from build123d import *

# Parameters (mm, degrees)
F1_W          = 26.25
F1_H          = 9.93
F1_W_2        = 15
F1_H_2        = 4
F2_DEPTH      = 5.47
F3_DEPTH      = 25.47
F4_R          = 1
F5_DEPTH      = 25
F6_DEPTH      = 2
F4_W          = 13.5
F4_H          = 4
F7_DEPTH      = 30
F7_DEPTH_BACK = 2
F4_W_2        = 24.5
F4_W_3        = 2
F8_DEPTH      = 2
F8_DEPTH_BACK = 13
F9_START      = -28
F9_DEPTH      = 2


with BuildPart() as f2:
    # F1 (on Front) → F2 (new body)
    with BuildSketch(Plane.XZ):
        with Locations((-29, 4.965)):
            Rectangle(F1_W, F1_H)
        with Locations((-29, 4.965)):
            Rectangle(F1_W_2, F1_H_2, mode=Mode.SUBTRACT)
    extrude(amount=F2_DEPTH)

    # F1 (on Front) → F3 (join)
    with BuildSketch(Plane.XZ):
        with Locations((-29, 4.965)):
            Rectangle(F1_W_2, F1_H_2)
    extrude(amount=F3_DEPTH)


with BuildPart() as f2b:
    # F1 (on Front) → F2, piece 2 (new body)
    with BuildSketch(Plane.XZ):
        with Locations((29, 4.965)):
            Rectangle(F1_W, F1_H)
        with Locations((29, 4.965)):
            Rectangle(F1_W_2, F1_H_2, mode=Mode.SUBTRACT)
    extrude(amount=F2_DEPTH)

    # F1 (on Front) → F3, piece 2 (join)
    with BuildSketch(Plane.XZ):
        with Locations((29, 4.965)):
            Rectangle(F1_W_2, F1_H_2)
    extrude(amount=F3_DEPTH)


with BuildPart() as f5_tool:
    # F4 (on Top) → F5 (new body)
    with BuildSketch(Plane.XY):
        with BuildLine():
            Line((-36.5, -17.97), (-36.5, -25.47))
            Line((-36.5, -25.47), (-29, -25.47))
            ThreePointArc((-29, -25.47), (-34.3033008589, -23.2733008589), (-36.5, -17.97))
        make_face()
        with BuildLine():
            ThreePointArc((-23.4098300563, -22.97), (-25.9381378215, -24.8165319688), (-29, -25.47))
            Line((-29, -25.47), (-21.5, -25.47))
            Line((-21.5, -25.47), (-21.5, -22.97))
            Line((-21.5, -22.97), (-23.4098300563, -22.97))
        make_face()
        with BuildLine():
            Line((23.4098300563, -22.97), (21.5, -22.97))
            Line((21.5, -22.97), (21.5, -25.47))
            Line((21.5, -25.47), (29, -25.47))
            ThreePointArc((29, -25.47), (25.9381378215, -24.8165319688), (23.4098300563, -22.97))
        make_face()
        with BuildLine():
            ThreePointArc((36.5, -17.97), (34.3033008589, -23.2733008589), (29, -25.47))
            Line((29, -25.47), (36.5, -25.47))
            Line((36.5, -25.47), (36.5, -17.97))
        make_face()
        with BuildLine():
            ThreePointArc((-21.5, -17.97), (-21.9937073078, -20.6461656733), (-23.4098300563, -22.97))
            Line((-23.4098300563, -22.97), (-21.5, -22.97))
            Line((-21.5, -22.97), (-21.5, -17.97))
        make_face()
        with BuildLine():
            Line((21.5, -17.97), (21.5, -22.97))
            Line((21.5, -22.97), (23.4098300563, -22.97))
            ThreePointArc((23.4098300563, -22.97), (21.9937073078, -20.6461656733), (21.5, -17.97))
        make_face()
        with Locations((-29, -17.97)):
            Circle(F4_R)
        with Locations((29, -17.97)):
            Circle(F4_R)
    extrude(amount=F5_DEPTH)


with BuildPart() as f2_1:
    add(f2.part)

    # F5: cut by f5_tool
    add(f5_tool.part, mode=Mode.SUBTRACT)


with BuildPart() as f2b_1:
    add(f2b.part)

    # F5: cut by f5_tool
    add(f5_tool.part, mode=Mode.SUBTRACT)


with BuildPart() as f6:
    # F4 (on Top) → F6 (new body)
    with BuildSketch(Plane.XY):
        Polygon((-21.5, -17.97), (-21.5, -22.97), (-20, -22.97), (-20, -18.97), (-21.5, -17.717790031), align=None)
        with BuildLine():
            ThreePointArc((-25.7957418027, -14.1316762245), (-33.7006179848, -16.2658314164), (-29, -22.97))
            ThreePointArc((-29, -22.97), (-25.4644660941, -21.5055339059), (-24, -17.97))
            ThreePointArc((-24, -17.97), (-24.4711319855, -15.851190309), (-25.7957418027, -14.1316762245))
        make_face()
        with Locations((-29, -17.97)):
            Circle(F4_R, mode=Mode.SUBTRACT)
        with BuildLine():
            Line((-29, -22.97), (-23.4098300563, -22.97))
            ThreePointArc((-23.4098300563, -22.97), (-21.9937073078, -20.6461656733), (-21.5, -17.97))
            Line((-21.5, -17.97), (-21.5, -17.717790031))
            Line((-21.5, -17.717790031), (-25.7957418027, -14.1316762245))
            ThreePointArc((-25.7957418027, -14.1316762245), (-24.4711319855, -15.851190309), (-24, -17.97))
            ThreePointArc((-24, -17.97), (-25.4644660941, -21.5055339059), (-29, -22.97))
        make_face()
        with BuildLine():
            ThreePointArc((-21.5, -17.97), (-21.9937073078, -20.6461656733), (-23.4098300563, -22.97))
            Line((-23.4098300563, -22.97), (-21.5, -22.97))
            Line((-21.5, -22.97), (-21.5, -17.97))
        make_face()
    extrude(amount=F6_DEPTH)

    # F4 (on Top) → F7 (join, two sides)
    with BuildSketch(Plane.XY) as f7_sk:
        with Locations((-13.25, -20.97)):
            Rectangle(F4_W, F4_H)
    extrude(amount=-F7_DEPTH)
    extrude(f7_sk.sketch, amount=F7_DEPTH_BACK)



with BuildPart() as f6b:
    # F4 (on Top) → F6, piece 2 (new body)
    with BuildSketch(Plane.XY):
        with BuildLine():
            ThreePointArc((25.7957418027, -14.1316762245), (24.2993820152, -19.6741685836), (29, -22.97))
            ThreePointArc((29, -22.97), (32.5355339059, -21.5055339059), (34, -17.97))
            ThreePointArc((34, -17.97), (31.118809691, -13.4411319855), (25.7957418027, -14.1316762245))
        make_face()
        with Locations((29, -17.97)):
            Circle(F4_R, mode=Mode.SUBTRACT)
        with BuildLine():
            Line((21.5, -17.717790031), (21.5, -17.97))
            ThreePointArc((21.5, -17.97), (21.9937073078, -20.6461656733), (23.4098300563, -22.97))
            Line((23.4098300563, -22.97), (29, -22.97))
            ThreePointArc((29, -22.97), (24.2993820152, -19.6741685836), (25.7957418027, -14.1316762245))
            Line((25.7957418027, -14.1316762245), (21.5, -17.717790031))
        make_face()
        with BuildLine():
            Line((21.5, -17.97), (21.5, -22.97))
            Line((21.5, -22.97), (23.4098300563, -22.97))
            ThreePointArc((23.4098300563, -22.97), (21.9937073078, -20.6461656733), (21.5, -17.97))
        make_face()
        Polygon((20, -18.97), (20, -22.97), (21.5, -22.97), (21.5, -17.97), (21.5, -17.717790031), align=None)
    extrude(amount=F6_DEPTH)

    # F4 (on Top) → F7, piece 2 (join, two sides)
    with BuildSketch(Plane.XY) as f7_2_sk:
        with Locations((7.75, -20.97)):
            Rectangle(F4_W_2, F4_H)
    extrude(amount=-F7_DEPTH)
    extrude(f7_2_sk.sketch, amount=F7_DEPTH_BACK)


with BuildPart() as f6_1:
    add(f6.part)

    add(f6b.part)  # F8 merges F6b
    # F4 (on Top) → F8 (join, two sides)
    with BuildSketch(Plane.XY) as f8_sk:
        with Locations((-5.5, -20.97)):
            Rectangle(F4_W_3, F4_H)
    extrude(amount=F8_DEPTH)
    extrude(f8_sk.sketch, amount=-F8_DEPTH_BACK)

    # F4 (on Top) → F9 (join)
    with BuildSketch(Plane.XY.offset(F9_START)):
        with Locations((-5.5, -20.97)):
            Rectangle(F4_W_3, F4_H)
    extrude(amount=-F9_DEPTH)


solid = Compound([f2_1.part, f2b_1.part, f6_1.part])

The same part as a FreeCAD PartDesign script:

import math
import FreeCAD as App
import Part
import Sketcher
Q = App.Units.Quantity


def add_polygon(sketch, points):
    """Adds a closed chain of lines whose ends are joined by coincident constraints."""
    first, n = sketch.GeometryCount, len(points)
    for a, b in zip(points, points[1:] + points[:1]):
        sketch.addGeometry(Part.LineSegment(App.Vector(*a, 0), App.Vector(*b, 0)), False)
    for i in range(n):
        sketch.addConstraint(Sketcher.Constraint("Coincident", first + i, 2, first + (i + 1) % n, 1))

doc = App.newDocument("Part")
body = doc.addObject("PartDesign::Body", "Body")

sketch1 = body.newObject("Sketcher::SketchObject", "Sketch")
sketch1.AttachmentSupport = (doc.getObject("XZ_Plane"), [""])
sketch1.MapMode = "FlatFace"
add_polygon(sketch1, [(-42.1, 9.9), (-42.1, 0), (-15.9, 0), (-15.9, 9.9)])
add_polygon(sketch1, [(-21.5, 3), (-36.5, 3), (-36.5, 7), (-21.5, 7)])
sketch1.addConstraint(Sketcher.Constraint("Vertical", 0))
sketch1.addConstraint(Sketcher.Constraint("Horizontal", 1))
sketch1.addConstraint(Sketcher.Constraint("Vertical", 2))
sketch1.addConstraint(Sketcher.Constraint("Horizontal", 3))
sketch1.addConstraint(Sketcher.Constraint("Horizontal", 4))
sketch1.addConstraint(Sketcher.Constraint("Vertical", 5))
sketch1.addConstraint(Sketcher.Constraint("Horizontal", 6))
sketch1.addConstraint(Sketcher.Constraint("Vertical", 7))
sketch1.addConstraint(Sketcher.Constraint("PointOnObject", 0, 2, -1))
sketch1.addConstraint(Sketcher.Constraint("DistanceX", 4, 2, 4, 1, Q("15 mm")))
sketch1.addConstraint(Sketcher.Constraint("DistanceY", 5, 1, 5, 2, Q("4 mm")))
sketch1.addConstraint(Sketcher.Constraint("DistanceX", 1, 1, 1, 2, Q("26.25 mm")))
sketch1.addConstraint(Sketcher.Constraint("DistanceY", 0, 2, 0, 1, Q("9.93 mm")))
sketch1.addConstraint(Sketcher.Constraint("DistanceX", 4, 2, -1, 1, Q("36.5 mm")))
sketch1.addConstraint(Sketcher.Constraint("DistanceX", 0, 2, -1, 1, Q("42.125 mm")))
sketch1.addConstraint(Sketcher.Constraint("DistanceY", -1, 1, 4, 2, Q("2.965 mm")))
pad1 = body.newObject("PartDesign::Pad", "Pad")
pad1.Profile = sketch1
pad1.Length = 5.47

sketch2 = body.newObject("Sketcher::SketchObject", "Sketch001")
sketch2.AttachmentSupport = (doc.getObject("XZ_Plane"), [""])
sketch2.MapMode = "FlatFace"
add_polygon(sketch2, [(-36.5, 7), (-36.5, 3), (-21.5, 3), (-21.5, 7)])
sketch2.addConstraint(Sketcher.Constraint("Vertical", 0))
sketch2.addConstraint(Sketcher.Constraint("Horizontal", 1))
sketch2.addConstraint(Sketcher.Constraint("Vertical", 2))
sketch2.addConstraint(Sketcher.Constraint("Horizontal", 3))
sketch2.addConstraint(Sketcher.Constraint("DistanceX", 1, 1, 1, 2, Q("15 mm")))
sketch2.addConstraint(Sketcher.Constraint("DistanceY", 0, 2, 0, 1, Q("4 mm")))
sketch2.addConstraint(Sketcher.Constraint("DistanceX", 0, 2, -1, 1, Q("36.5 mm")))
sketch2.addConstraint(Sketcher.Constraint("DistanceY", -1, 1, 0, 2, Q("2.965 mm")))
pad2 = body.newObject("PartDesign::Pad", "Pad001")
pad2.Profile = sketch2
pad2.Length = 25.47
body2 = doc.addObject("PartDesign::Body", "Body001")

sketch3 = body2.newObject("Sketcher::SketchObject", "Sketch002")
sketch3.AttachmentSupport = (doc.getObject("XZ_Plane001"), [""])
sketch3.MapMode = "FlatFace"
add_polygon(sketch3, [(15.9, 9.9), (15.9, 0), (42.1, 0), (42.1, 9.9)])
add_polygon(sketch3, [(36.5, 3), (21.5, 3), (21.5, 7), (36.5, 7)])
sketch3.addConstraint(Sketcher.Constraint("Vertical", 0))
sketch3.addConstraint(Sketcher.Constraint("Horizontal", 1))
sketch3.addConstraint(Sketcher.Constraint("Vertical", 2))
sketch3.addConstraint(Sketcher.Constraint("Horizontal", 3))
sketch3.addConstraint(Sketcher.Constraint("Horizontal", 4))
sketch3.addConstraint(Sketcher.Constraint("Vertical", 5))
sketch3.addConstraint(Sketcher.Constraint("Horizontal", 6))
sketch3.addConstraint(Sketcher.Constraint("Vertical", 7))
sketch3.addConstraint(Sketcher.Constraint("PointOnObject", 0, 2, -1))
sketch3.addConstraint(Sketcher.Constraint("DistanceX", 4, 2, 4, 1, Q("15 mm")))
sketch3.addConstraint(Sketcher.Constraint("DistanceY", 5, 1, 5, 2, Q("4 mm")))
sketch3.addConstraint(Sketcher.Constraint("DistanceX", 1, 1, 1, 2, Q("26.25 mm")))
sketch3.addConstraint(Sketcher.Constraint("DistanceY", 0, 2, 0, 1, Q("9.93 mm")))
sketch3.addConstraint(Sketcher.Constraint("DistanceX", -1, 1, 4, 2, Q("21.5 mm")))
sketch3.addConstraint(Sketcher.Constraint("DistanceX", -1, 1, 0, 2, Q("15.875 mm")))
sketch3.addConstraint(Sketcher.Constraint("DistanceY", -1, 1, 4, 2, Q("2.965 mm")))
pad3 = body2.newObject("PartDesign::Pad", "Pad002")
pad3.Profile = sketch3
pad3.Length = 5.47

sketch4 = body2.newObject("Sketcher::SketchObject", "Sketch003")
sketch4.AttachmentSupport = (doc.getObject("XZ_Plane001"), [""])
sketch4.MapMode = "FlatFace"
add_polygon(sketch4, [(21.5, 7), (21.5, 3), (36.5, 3), (36.5, 7)])
sketch4.addConstraint(Sketcher.Constraint("Vertical", 0))
sketch4.addConstraint(Sketcher.Constraint("Horizontal", 1))
sketch4.addConstraint(Sketcher.Constraint("Vertical", 2))
sketch4.addConstraint(Sketcher.Constraint("Horizontal", 3))
sketch4.addConstraint(Sketcher.Constraint("DistanceX", 1, 1, 1, 2, Q("15 mm")))
sketch4.addConstraint(Sketcher.Constraint("DistanceY", 0, 2, 0, 1, Q("4 mm")))
sketch4.addConstraint(Sketcher.Constraint("DistanceX", -1, 1, 0, 2, Q("21.5 mm")))
sketch4.addConstraint(Sketcher.Constraint("DistanceY", -1, 1, 0, 2, Q("2.965 mm")))
pad4 = body2.newObject("PartDesign::Pad", "Pad003")
pad4.Profile = sketch4
pad4.Length = 25.47
body3 = doc.addObject("PartDesign::Body", "Body002")
body3.AllowCompound = True

sketch5 = body3.newObject("Sketcher::SketchObject", "Sketch004")
sketch5.AttachmentSupport = (doc.getObject("XY_Plane002"), [""])
sketch5.MapMode = "FlatFace"
sketch5.addGeometry(Part.LineSegment(App.Vector(-36.5, -18, 0), App.Vector(-36.5, -25.5, 0)), False)
sketch5.addGeometry(Part.LineSegment(App.Vector(-36.5, -25.5, 0), App.Vector(-29, -25.5, 0)), False)
sketch5.addGeometry(Part.ArcOfCircle(Part.Circle(App.Vector(-29, -18, 0), App.Vector(0, 0, 1), 7.5), math.radians(180), math.radians(270)), False)
sketch5.addGeometry(Part.ArcOfCircle(Part.Circle(App.Vector(-29, -18, 0), App.Vector(0, 0, 1), 7.5), math.radians(-90), math.radians(-42)), False)
sketch5.addGeometry(Part.LineSegment(App.Vector(-29, -25.5, 0), App.Vector(-21.5, -25.5, 0)), False)
sketch5.addGeometry(Part.LineSegment(App.Vector(-21.5, -25.5, 0), App.Vector(-21.5, -18, 0)), False)
sketch5.addGeometry(Part.ArcOfCircle(Part.Circle(App.Vector(-29, -18, 0), App.Vector(0, 0, 1), 7.5), math.radians(-42), math.radians(0)), False)
sketch5.addGeometry(Part.LineSegment(App.Vector(21.5, -25.5, 0), App.Vector(29, -25.5, 0)), False)
sketch5.addGeometry(Part.ArcOfCircle(Part.Circle(App.Vector(29, -18, 0), App.Vector(0, 0, 1), 7.5), math.radians(-138), math.radians(-90)), False)
sketch5.addGeometry(Part.ArcOfCircle(Part.Circle(App.Vector(29, -18, 0), App.Vector(0, 0, 1), 7.5), math.radians(180), math.radians(222)), False)
sketch5.addGeometry(Part.LineSegment(App.Vector(21.5, -18, 0), App.Vector(21.5, -25.5, 0)), False)
sketch5.addGeometry(Part.ArcOfCircle(Part.Circle(App.Vector(29, -18, 0), App.Vector(0, 0, 1), 7.5), math.radians(-90), math.radians(0)), False)
sketch5.addGeometry(Part.LineSegment(App.Vector(29, -25.5, 0), App.Vector(36.5, -25.5, 0)), False)
sketch5.addGeometry(Part.LineSegment(App.Vector(36.5, -25.5, 0), App.Vector(36.5, -18, 0)), False)
sketch5.addGeometry(Part.Circle(App.Vector(-29, -18, 0), App.Vector(0, 0, 1), 1), False)
sketch5.addGeometry(Part.Circle(App.Vector(29, -18, 0), App.Vector(0, 0, 1), 1), False)
sketch5.addConstraint(Sketcher.Constraint("Coincident", 0, 2, 1, 1))
sketch5.addConstraint(Sketcher.Constraint("Tangent", 1, 2, 2, 2))
sketch5.addConstraint(Sketcher.Constraint("Tangent", 2, 1, 0, 1))
sketch5.addConstraint(Sketcher.Constraint("Tangent", 3, 1, 4, 1))
sketch5.addConstraint(Sketcher.Constraint("Coincident", 4, 2, 5, 1))
sketch5.addConstraint(Sketcher.Constraint("Tangent", 5, 2, 6, 2))
sketch5.addConstraint(Sketcher.Constraint("Tangent", 6, 1, 3, 2))
sketch5.addConstraint(Sketcher.Constraint("Tangent", 7, 2, 8, 2))
sketch5.addConstraint(Sketcher.Constraint("Tangent", 8, 1, 9, 2))
sketch5.addConstraint(Sketcher.Constraint("Tangent", 9, 1, 10, 1))
sketch5.addConstraint(Sketcher.Constraint("Coincident", 10, 2, 7, 1))
sketch5.addConstraint(Sketcher.Constraint("Tangent", 11, 1, 12, 1))
sketch5.addConstraint(Sketcher.Constraint("Coincident", 12, 2, 13, 1))
sketch5.addConstraint(Sketcher.Constraint("Tangent", 13, 2, 11, 2))
sketch5.addConstraint(Sketcher.Constraint("Vertical", 0))
sketch5.addConstraint(Sketcher.Constraint("Horizontal", 1))
sketch5.addConstraint(Sketcher.Constraint("Horizontal", 4))
sketch5.addConstraint(Sketcher.Constraint("Vertical", 5))
sketch5.addConstraint(Sketcher.Constraint("Horizontal", 7))
sketch5.addConstraint(Sketcher.Constraint("Vertical", 10))
sketch5.addConstraint(Sketcher.Constraint("Horizontal", 12))
sketch5.addConstraint(Sketcher.Constraint("Vertical", 13))
sketch5.addConstraint(Sketcher.Constraint("Coincident", 3, 3, 2, 3))
sketch5.addConstraint(Sketcher.Constraint("Coincident", 11, 3, 8, 3))
sketch5.addConstraint(Sketcher.Constraint("Coincident", 14, 3, 2, 3))
sketch5.addConstraint(Sketcher.Constraint("Coincident", 15, 3, 8, 3))
sketch5.addConstraint(Sketcher.Constraint("Equal", 2, 3))
sketch5.addConstraint(Sketcher.Constraint("Equal", 3, 6))
sketch5.addConstraint(Sketcher.Constraint("Equal", 6, 8))
sketch5.addConstraint(Sketcher.Constraint("Equal", 8, 9))
sketch5.addConstraint(Sketcher.Constraint("Equal", 9, 11))
sketch5.addConstraint(Sketcher.Constraint("Equal", 14, 15))
sketch5.addConstraint(Sketcher.Constraint("Symmetric", 2, 3, 8, 3, -2))
sketch5.addConstraint(Sketcher.Constraint("Horizontal", 6, 1, 8, 1))
sketch5.addConstraint(Sketcher.Constraint("Diameter", 14, Q("2 mm")))
sketch5.addConstraint(Sketcher.Constraint("Radius", 2, Q("7.5 mm")))
sketch5.addConstraint(Sketcher.Constraint("DistanceX", 2, 3, -1, 1, Q("29 mm")))
sketch5.addConstraint(Sketcher.Constraint("DistanceY", 6, 1, 5, 2, Q("5 mm")))
sketch5.addConstraint(Sketcher.Constraint("DistanceY", 2, 3, -1, 1, Q("17.97 mm")))
pad5 = body3.newObject("PartDesign::Pad", "Pad004")
pad5.Profile = sketch5
pad5.Length = 25
doc.recompute()

body4 = doc.addObject("PartDesign::Body", "Body003")
body4.BaseFeature = body3
boolean = body.newObject("PartDesign::Boolean", "Boolean")
boolean.Type = "Cut"
boolean.addObjects([body4])
doc.recompute()

boolean2 = body2.newObject("PartDesign::Boolean", "Boolean001")
boolean2.Type = "Cut"
boolean2.addObjects([body3])
body5 = doc.addObject("PartDesign::Body", "Body004")

sketch6 = body5.newObject("Sketcher::SketchObject", "Sketch005")
sketch6.AttachmentSupport = (doc.getObject("XY_Plane004"), [""])
sketch6.MapMode = "FlatFace"
sketch6.addGeometry(Part.LineSegment(App.Vector(-20, -23, 0), App.Vector(-20, -19, 0)), False)
sketch6.addGeometry(Part.LineSegment(App.Vector(-20, -19, 0), App.Vector(-21.5, -17.7, 0)), False)
sketch6.addGeometry(Part.LineSegment(App.Vector(-21.5, -17.7, 0), App.Vector(-25.8, -14.1, 0)), False)
sketch6.addGeometry(Part.ArcOfCircle(Part.Circle(App.Vector(-29, -18, 0), App.Vector(0, 0, 1), 5), math.radians(50), math.radians(270)), False)
sketch6.addGeometry(Part.LineSegment(App.Vector(-29, -23, 0), App.Vector(-20, -23, 0)), False)
sketch6.addGeometry(Part.Circle(App.Vector(-29, -18, 0), App.Vector(0, 0, 1), 1), False)
sketch6.addConstraint(Sketcher.Constraint("Coincident", 0, 2, 1, 1))
sketch6.addConstraint(Sketcher.Constraint("Coincident", 1, 2, 2, 1))
sketch6.addConstraint(Sketcher.Constraint("Tangent", 2, 2, 3, 1))
sketch6.addConstraint(Sketcher.Constraint("Tangent", 3, 2, 4, 1))
sketch6.addConstraint(Sketcher.Constraint("Coincident", 4, 2, 0, 1))
sketch6.addConstraint(Sketcher.Constraint("Vertical", 0))
sketch6.addConstraint(Sketcher.Constraint("Horizontal", 4))
sketch6.addConstraint(Sketcher.Constraint("Coincident", 5, 3, 3, 3))
sketch6.addConstraint(Sketcher.Constraint("Parallel", 1, 2))
sketch6.addConstraint(Sketcher.Constraint("Diameter", 5, Q("2 mm")))
sketch6.addConstraint(Sketcher.Constraint("Radius", 3, Q("5 mm")))
sketch6.addConstraint(Sketcher.Constraint("DistanceX", 4, 1, 4, 2, Q("9 mm")))
sketch6.addConstraint(Sketcher.Constraint("DistanceY", 0, 1, 0, 2, Q("4 mm")))
sketch6.addConstraint(Sketcher.Constraint("DistanceX", 3, 3, -1, 1, Q("29 mm")))
sketch6.addConstraint(Sketcher.Constraint("DistanceX", 1, 2, -1, 1, Q("21.5 mm")))
sketch6.addConstraint(Sketcher.Constraint("DistanceY", 3, 3, -1, 1, Q("17.97 mm")))
pad6 = body5.newObject("PartDesign::Pad", "Pad005")
pad6.Profile = sketch6
pad6.Length = 2

sketch7 = body5.newObject("Sketcher::SketchObject", "Sketch006")
sketch7.AttachmentSupport = (doc.getObject("XY_Plane004"), [""])
sketch7.MapMode = "FlatFace"
add_polygon(sketch7, [(-20, -19), (-20, -23), (-6.5, -23), (-6.5, -19)])
sketch7.addConstraint(Sketcher.Constraint("Vertical", 0))
sketch7.addConstraint(Sketcher.Constraint("Horizontal", 1))
sketch7.addConstraint(Sketcher.Constraint("Vertical", 2))
sketch7.addConstraint(Sketcher.Constraint("Horizontal", 3))
sketch7.addConstraint(Sketcher.Constraint("DistanceY", 0, 2, 0, 1, Q("4 mm")))
sketch7.addConstraint(Sketcher.Constraint("DistanceX", 1, 1, 1, 2, Q("13.5 mm")))
sketch7.addConstraint(Sketcher.Constraint("DistanceX", 0, 2, -1, 1, Q("20 mm")))
sketch7.addConstraint(Sketcher.Constraint("DistanceY", 0, 2, -1, 1, Q("22.97 mm")))
pad7 = body5.newObject("PartDesign::Pad", "Pad006")
pad7.Profile = sketch7
pad7.Type = "TwoLengths"
pad7.Length = 30
pad7.Length2 = 2
pad7.Reversed = True
body6 = doc.addObject("PartDesign::Body", "Body005")

sketch8 = body6.newObject("Sketcher::SketchObject", "Sketch007")
sketch8.AttachmentSupport = (doc.getObject("XY_Plane005"), [""])
sketch8.MapMode = "FlatFace"
sketch8.addGeometry(Part.ArcOfCircle(Part.Circle(App.Vector(29, -18, 0), App.Vector(0, 0, 1), 5), math.radians(0), math.radians(130)), False)
sketch8.addGeometry(Part.LineSegment(App.Vector(25.8, -14.1, 0), App.Vector(21.5, -17.7, 0)), False)
sketch8.addGeometry(Part.LineSegment(App.Vector(21.5, -17.7, 0), App.Vector(20, -19, 0)), False)
sketch8.addGeometry(Part.LineSegment(App.Vector(20, -19, 0), App.Vector(20, -23, 0)), False)
sketch8.addGeometry(Part.LineSegment(App.Vector(20, -23, 0), App.Vector(29, -23, 0)), False)
sketch8.addGeometry(Part.ArcOfCircle(Part.Circle(App.Vector(29, -18, 0), App.Vector(0, 0, 1), 5), math.radians(-90), math.radians(0)), False)
sketch8.addGeometry(Part.Circle(App.Vector(29, -18, 0), App.Vector(0, 0, 1), 1), False)
sketch8.addConstraint(Sketcher.Constraint("Tangent", 0, 2, 1, 1))
sketch8.addConstraint(Sketcher.Constraint("Coincident", 1, 2, 2, 1))
sketch8.addConstraint(Sketcher.Constraint("Coincident", 2, 2, 3, 1))
sketch8.addConstraint(Sketcher.Constraint("Coincident", 3, 2, 4, 1))
sketch8.addConstraint(Sketcher.Constraint("Tangent", 4, 2, 5, 1))
sketch8.addConstraint(Sketcher.Constraint("Tangent", 5, 2, 0, 1))
sketch8.addConstraint(Sketcher.Constraint("Vertical", 3))
sketch8.addConstraint(Sketcher.Constraint("Horizontal", 4))
sketch8.addConstraint(Sketcher.Constraint("Coincident", 6, 3, 0, 3))
sketch8.addConstraint(Sketcher.Constraint("Equal", 0, 5))
sketch8.addConstraint(Sketcher.Constraint("Parallel", 1, 2))
sketch8.addConstraint(Sketcher.Constraint("Horizontal", 6, 3, 5, 2))
sketch8.addConstraint(Sketcher.Constraint("Diameter", 6, Q("2 mm")))
sketch8.addConstraint(Sketcher.Constraint("Radius", 0, Q("5 mm")))
sketch8.addConstraint(Sketcher.Constraint("DistanceX", 4, 1, 4, 2, Q("9 mm")))
sketch8.addConstraint(Sketcher.Constraint("DistanceY", 3, 2, 3, 1, Q("4 mm")))
sketch8.addConstraint(Sketcher.Constraint("DistanceX", -1, 1, 0, 3, Q("29 mm")))
sketch8.addConstraint(Sketcher.Constraint("DistanceX", -1, 1, 1, 2, Q("21.5 mm")))
sketch8.addConstraint(Sketcher.Constraint("DistanceY", 0, 3, -1, 1, Q("17.97 mm")))
pad8 = body6.newObject("PartDesign::Pad", "Pad007")
pad8.Profile = sketch8
pad8.Length = 2

sketch9 = body6.newObject("Sketcher::SketchObject", "Sketch008")
sketch9.AttachmentSupport = (doc.getObject("XY_Plane005"), [""])
sketch9.MapMode = "FlatFace"
add_polygon(sketch9, [(-4.5, -19), (-4.5, -23), (20, -23), (20, -19)])
sketch9.addConstraint(Sketcher.Constraint("Vertical", 0))
sketch9.addConstraint(Sketcher.Constraint("Horizontal", 1))
sketch9.addConstraint(Sketcher.Constraint("Vertical", 2))
sketch9.addConstraint(Sketcher.Constraint("Horizontal", 3))
sketch9.addConstraint(Sketcher.Constraint("DistanceY", 0, 2, 0, 1, Q("4 mm")))
sketch9.addConstraint(Sketcher.Constraint("DistanceX", 1, 1, 1, 2, Q("24.5 mm")))
sketch9.addConstraint(Sketcher.Constraint("DistanceX", -1, 1, 1, 2, Q("20 mm")))
sketch9.addConstraint(Sketcher.Constraint("DistanceY", 0, 2, -1, 1, Q("22.97 mm")))
pad9 = body6.newObject("PartDesign::Pad", "Pad008")
pad9.Profile = sketch9
pad9.Type = "TwoLengths"
pad9.Length = 30
pad9.Length2 = 2
pad9.Reversed = True
body5.AllowCompound = True
doc.recompute()

boolean3 = body5.newObject("PartDesign::Boolean", "Boolean002")
boolean3.Type = "Fuse"
boolean3.addObjects([body6])

sketch10 = body5.newObject("Sketcher::SketchObject", "Sketch009")
sketch10.AttachmentSupport = (doc.getObject("XY_Plane004"), [""])
sketch10.MapMode = "FlatFace"
add_polygon(sketch10, [(-6.5, -19), (-6.5, -23), (-4.5, -23), (-4.5, -19)])
sketch10.addConstraint(Sketcher.Constraint("Vertical", 0))
sketch10.addConstraint(Sketcher.Constraint("Horizontal", 1))
sketch10.addConstraint(Sketcher.Constraint("Vertical", 2))
sketch10.addConstraint(Sketcher.Constraint("Horizontal", 3))
sketch10.addConstraint(Sketcher.Constraint("DistanceX", 1, 1, 1, 2, Q("2 mm")))
sketch10.addConstraint(Sketcher.Constraint("DistanceY", 0, 2, 0, 1, Q("4 mm")))
sketch10.addConstraint(Sketcher.Constraint("DistanceX", 0, 2, -1, 1, Q("6.5 mm")))
sketch10.addConstraint(Sketcher.Constraint("DistanceY", 0, 2, -1, 1, Q("22.97 mm")))
pad10 = body5.newObject("PartDesign::Pad", "Pad009")
pad10.Profile = sketch10
pad10.Type = "TwoLengths"
pad10.Length = 2
pad10.Length2 = 13

sketch11 = body5.newObject("Sketcher::SketchObject", "Sketch010")
sketch11.AttachmentSupport = (doc.getObject("XY_Plane004"), [""])
sketch11.MapMode = "FlatFace"
sketch11.AttachmentOffset = App.Placement(App.Vector(0, 0, -28), App.Rotation())
add_polygon(sketch11, [(-6.5, -19), (-6.5, -23), (-4.5, -23), (-4.5, -19)])
sketch11.addConstraint(Sketcher.Constraint("Vertical", 0))
sketch11.addConstraint(Sketcher.Constraint("Horizontal", 1))
sketch11.addConstraint(Sketcher.Constraint("Vertical", 2))
sketch11.addConstraint(Sketcher.Constraint("Horizontal", 3))
sketch11.addConstraint(Sketcher.Constraint("DistanceX", 1, 1, 1, 2, Q("2 mm")))
sketch11.addConstraint(Sketcher.Constraint("DistanceY", 0, 2, 0, 1, Q("4 mm")))
sketch11.addConstraint(Sketcher.Constraint("DistanceX", 0, 2, -1, 1, Q("6.5 mm")))
sketch11.addConstraint(Sketcher.Constraint("DistanceY", 0, 2, -1, 1, Q("22.97 mm")))
pad11 = body5.newObject("PartDesign::Pad", "Pad010")
pad11.Profile = sketch11
pad11.Length = 2
pad11.Reversed = True

doc.recompute()
